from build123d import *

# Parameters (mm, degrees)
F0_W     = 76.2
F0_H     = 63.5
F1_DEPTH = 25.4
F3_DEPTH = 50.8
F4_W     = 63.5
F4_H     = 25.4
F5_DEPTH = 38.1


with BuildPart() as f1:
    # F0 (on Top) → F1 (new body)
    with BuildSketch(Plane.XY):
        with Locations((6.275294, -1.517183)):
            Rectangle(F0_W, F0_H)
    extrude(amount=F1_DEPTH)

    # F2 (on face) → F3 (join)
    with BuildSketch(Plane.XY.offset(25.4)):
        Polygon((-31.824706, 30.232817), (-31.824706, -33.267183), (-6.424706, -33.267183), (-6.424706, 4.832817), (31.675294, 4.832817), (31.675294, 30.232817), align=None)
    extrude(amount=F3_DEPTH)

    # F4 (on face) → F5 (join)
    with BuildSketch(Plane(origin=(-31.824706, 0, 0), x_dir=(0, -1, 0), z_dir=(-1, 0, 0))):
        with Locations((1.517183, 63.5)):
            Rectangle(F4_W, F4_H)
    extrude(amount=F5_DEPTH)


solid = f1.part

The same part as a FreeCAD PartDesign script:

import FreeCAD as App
import Part
import Sketcher
from FreeCAD import Vector
Q = App.Units.Quantity


def add_polygon(sketch, points):
    """Adds a closed chain of lines whose ends are joined by coincident constraints."""
    first, n = sketch.GeometryCount, len(points)
    for a, b in zip(points, points[1:] + points[:1]):
        sketch.addGeometry(Part.LineSegment(App.Vector(*a, 0), App.Vector(*b, 0)), False)
    for i in range(n):
        sketch.addConstraint(Sketcher.Constraint("Coincident", first + i, 2, first + (i + 1) % n, 1))

doc = App.newDocument("Part")
body = doc.addObject("PartDesign::Body", "Body")

# Sketch on XY plane
sketch1 = doc.addObject("Sketcher::SketchObject", "Sketch")
body.addObject(sketch1)
sketch1.AttachmentSupport = (doc.XY_Plane, [""])
sketch1.MapMode = "FlatFace"
add_polygon(sketch1, [(-31.824706, 30.232817), (-31.824706, -33.267183), (44.375294, -33.267183), (44.375294, 30.232817)])  # lines 0-3
sketch1.addConstraint(Sketcher.Constraint("Vertical", 0))
sketch1.addConstraint(Sketcher.Constraint("Horizontal", 1))
sketch1.addConstraint(Sketcher.Constraint("Vertical", 2))
sketch1.addConstraint(Sketcher.Constraint("Horizontal", 3))
sketch1.addConstraint(Sketcher.Constraint("DistanceX", 1, 1, 1, 2, Q("3 in")))
sketch1.addConstraint(Sketcher.Constraint("DistanceY", 0, 2, 0, 1, Q("2.5 in")))
sketch1.addConstraint(Sketcher.Constraint("DistanceX", 0, 2, -1, 1, Q("31.824706 mm")))
sketch1.addConstraint(Sketcher.Constraint("DistanceY", 0, 2, -1, 1, Q("33.267183 mm")))
pad1 = doc.addObject("PartDesign::Pad", "Pad")
body.addObject(pad1)
pad1.Profile = sketch1
pad1.Length = Q("1 in")

# Sketch on XY plane
sketch2 = doc.addObject("Sketcher::SketchObject", "Sketch001")
body.addObject(sketch2)
sketch2.AttachmentSupport = (doc.XY_Plane, [""])
sketch2.MapMode = "FlatFace"
sketch2.AttachmentOffset = App.Placement(Vector(0, 0, 1 * 25.4), App.Rotation())
add_polygon(sketch2, [(-31.824706, 30.232817), (-31.824706, -33.267183), (-6.424706, -33.267183), (-6.424706, 4.832817), (31.675294, 4.832817), (31.675294, 30.232817)])  # lines 0-5
sketch2.addConstraint(Sketcher.Constraint("Vertical", 0))
sketch2.addConstraint(Sketcher.Constraint("Horizontal", 1))
sketch2.addConstraint(Sketcher.Constraint("Vertical", 2))
sketch2.addConstraint(Sketcher.Constraint("Horizontal", 3))
sketch2.addConstraint(Sketcher.Constraint("Vertical", 4))
sketch2.addConstraint(Sketcher.Constraint("Horizontal", 5))
sketch2.addConstraint(Sketcher.Constraint("Equal", 5, 0))
sketch2.addConstraint(Sketcher.Constraint("Equal", 3, 2))
sketch2.addConstraint(Sketcher.Constraint("DistanceX", 1, 1, 1, 2, Q("1 in")))
sketch2.addConstraint(Sketcher.Constraint("DistanceX", 3, 1, 3, 2, Q("1.5 in")))
sketch2.addConstraint(Sketcher.Constraint("DistanceX", 0, 2, -1, 1, Q("31.824706 mm")))
sketch2.addConstraint(Sketcher.Constraint("DistanceY", 0, 2, -1, 1, Q("33.267183 mm")))
pad2 = doc.addObject("PartDesign::Pad", "Pad001")
body.addObject(pad2)
pad2.Profile = sketch2
pad2.Length = Q("2 in")

# Sketch on YZ plane
sketch3 = doc.addObject("Sketcher::SketchObject", "Sketch002")
body.addObject(sketch3)
sketch3.AttachmentSupport = (doc.YZ_Plane, [""])
sketch3.MapMode = "FlatFace"
sketch3.AttachmentOffset = App.Placement(Vector(0, 0, -31.824706), App.Rotation())
add_polygon(sketch3, [(30.232817, 76.2), (30.232817, 50.8), (-33.267183, 50.8), (-33.267183, 76.2)])  # lines 0-3
sketch3.addConstraint(Sketcher.Constraint("Vertical", 0))
sketch3.addConstraint(Sketcher.Constraint("Horizontal", 1))
sketch3.addConstraint(Sketcher.Constraint("Vertical", 2))
sketch3.addConstraint(Sketcher.Constraint("Horizontal", 3))
sketch3.addConstraint(Sketcher.Constraint("DistanceY", 0, 2, 0, 1, Q("1 in")))
sketch3.addConstraint(Sketcher.Constraint("DistanceX", 1, 2, 1, 1, Q("2.5 in")))
sketch3.addConstraint(Sketcher.Constraint("DistanceY", -1, 1, 0, 2, Q("2 in")))
sketch3.addConstraint(Sketcher.Constraint("DistanceX", -1, 1, 0, 2, Q("30.232817 mm")))
pad3 = doc.addObject("PartDesign::Pad", "Pad002")
body.addObject(pad3)
pad3.Profile = sketch3
pad3.Length = Q("1.5 in")
pad3.Reversed = True

doc.recompute()
